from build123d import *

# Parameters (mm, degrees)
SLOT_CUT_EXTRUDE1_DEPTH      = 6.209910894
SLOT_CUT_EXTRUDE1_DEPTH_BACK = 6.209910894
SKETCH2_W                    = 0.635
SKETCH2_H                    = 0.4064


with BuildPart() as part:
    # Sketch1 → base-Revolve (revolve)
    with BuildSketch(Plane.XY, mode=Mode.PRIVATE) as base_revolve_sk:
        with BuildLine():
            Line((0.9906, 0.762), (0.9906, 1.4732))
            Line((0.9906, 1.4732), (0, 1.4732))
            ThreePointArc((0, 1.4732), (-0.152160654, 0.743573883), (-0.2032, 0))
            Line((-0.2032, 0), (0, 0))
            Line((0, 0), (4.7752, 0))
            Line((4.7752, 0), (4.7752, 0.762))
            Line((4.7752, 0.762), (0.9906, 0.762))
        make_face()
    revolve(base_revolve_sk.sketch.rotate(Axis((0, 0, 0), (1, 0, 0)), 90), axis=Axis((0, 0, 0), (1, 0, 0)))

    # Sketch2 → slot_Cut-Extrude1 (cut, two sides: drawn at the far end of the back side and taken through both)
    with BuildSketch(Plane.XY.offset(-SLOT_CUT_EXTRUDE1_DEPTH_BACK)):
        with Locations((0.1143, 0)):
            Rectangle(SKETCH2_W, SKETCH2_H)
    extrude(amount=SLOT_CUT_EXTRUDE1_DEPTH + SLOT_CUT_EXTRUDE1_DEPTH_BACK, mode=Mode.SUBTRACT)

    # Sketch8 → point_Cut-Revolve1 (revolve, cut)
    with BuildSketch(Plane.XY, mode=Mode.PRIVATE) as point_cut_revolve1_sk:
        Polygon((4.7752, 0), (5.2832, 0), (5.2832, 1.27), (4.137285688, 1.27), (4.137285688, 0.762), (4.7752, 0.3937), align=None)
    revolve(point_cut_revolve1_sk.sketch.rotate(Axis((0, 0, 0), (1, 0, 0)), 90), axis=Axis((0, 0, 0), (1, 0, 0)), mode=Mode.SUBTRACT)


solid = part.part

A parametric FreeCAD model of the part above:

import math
import FreeCAD as App
import Part
import Sketcher

V = App.Vector
Q = App.Units.Quantity

doc = App.newDocument("Part")
body = doc.addObject("PartDesign::Body", "Body")

sketch1 = body.newObject("Sketcher::SketchObject", "Sketch")
sketch1.AttachmentSupport = (doc.getObject("XY_Plane"), [""])
sketch1.MapMode = "FlatFace"
sketch1.addGeometry(Part.LineSegment(V(1, 0.8, 0), V(1, 1.5, 0)), False)
sketch1.addGeometry(Part.LineSegment(V(1, 1.5, 0), V(0, 1.5, 0)), False)
sketch1.addGeometry(Part.ArcOfCircle(Part.Circle(V(5.2, 0, 0), V(0, 0, 1), 5.4), math.radians(164.29), math.radians(180)), False)
sketch1.addGeometry(Part.LineSegment(V(-0.2, 0, 0), V(4.8, 0, 0)), False)
sketch1.addGeometry(Part.LineSegment(V(4.8, 0, 0), V(4.8, 0.8, 0)), False)
sketch1.addGeometry(Part.LineSegment(V(4.8, 0.8, 0), V(1, 0.8, 0)), False)
sketch1.addConstraint(Sketcher.Constraint("Coincident", 0, 2, 1, 1))
sketch1.addConstraint(Sketcher.Constraint("Coincident", 1, 2, 2, 1))
sketch1.addConstraint(Sketcher.Constraint("Coincident", 2, 2, 3, 1))
sketch1.addConstraint(Sketcher.Constraint("Coincident", 3, 2, 4, 1))
sketch1.addConstraint(Sketcher.Constraint("Coincident", 4, 2, 5, 1))
sketch1.addConstraint(Sketcher.Constraint("Coincident", 5, 2, 0, 1))
sketch1.addConstraint(Sketcher.Constraint("Vertical", 0))
sketch1.addConstraint(Sketcher.Constraint("Horizontal", 1))
sketch1.addConstraint(Sketcher.Constraint("Horizontal", 3))
sketch1.addConstraint(Sketcher.Constraint("Vertical", 4))
sketch1.addConstraint(Sketcher.Constraint("Horizontal", 5))
sketch1.addConstraint(Sketcher.Constraint("PointOnObject", 2, 3, -1))
sketch1.addConstraint(Sketcher.Constraint("PointOnObject", 1, 2, -2))
sketch1.addConstraint(Sketcher.Constraint("PointOnObject", 2, 2, -1))
sketch1.addConstraint(Sketcher.Constraint("DistanceY", 4, 1, 4, 2, Q("0.03 in")))
sketch1.addConstraint(Sketcher.Constraint("DistanceX", 1, 2, 1, 1, Q("0.039 in")))
sketch1.addConstraint(Sketcher.Constraint("DistanceX", 3, 1, 3, 2, Q("0.196 in")))
sketch1.addConstraint(Sketcher.Constraint("DistanceX", 5, 2, 5, 1, Q("0.149 in")))
sketch1.addConstraint(Sketcher.Constraint("DistanceY", 0, 1, 0, 2, Q("0.028 in")))
revolution = body.newObject("PartDesign::Revolution", "Revolution")
revolution.Profile = sketch1
revolution.ReferenceAxis = (sketch1, ["H_Axis"])
revolution.Angle = 360

sketch2 = body.newObject("Sketcher::SketchObject", "Sketch001")
sketch2.AttachmentSupport = (doc.getObject("XY_Plane"), [""])
sketch2.MapMode = "FlatFace"
sketch2.addGeometry(Part.LineSegment(V(-0.2, 0.2, 0), V(-0.2, -0.2, 0)), False)
sketch2.addGeometry(Part.LineSegment(V(-0.2, -0.2, 0), V(0.43, -0.2, 0)), False)
sketch2.addGeometry(Part.LineSegment(V(0.43, -0.2, 0), V(0.43, 0.2, 0)), False)
sketch2.addGeometry(Part.LineSegment(V(0.43, 0.2, 0), V(-0.2, 0.2, 0)), False)
sketch2.addConstraint(Sketcher.Constraint("Coincident", 0, 2, 1, 1))
sketch2.addConstraint(Sketcher.Constraint("Coincident", 1, 2, 2, 1))
sketch2.addConstraint(Sketcher.Constraint("Coincident", 2, 2, 3, 1))
sketch2.addConstraint(Sketcher.Constraint("Coincident", 3, 2, 0, 1))
sketch2.addConstraint(Sketcher.Constraint("Vertical", 0))
sketch2.addConstraint(Sketcher.Constraint("Horizontal", 1))
sketch2.addConstraint(Sketcher.Constraint("Vertical", 2))
sketch2.addConstraint(Sketcher.Constraint("Horizontal", 3))
sketch2.addConstraint(Sketcher.Constraint("DistanceX", 1, 1, 1, 2, Q("0.025 in")))
sketch2.addConstraint(Sketcher.Constraint("DistanceY", 0, 2, 0, 1, Q("0.016 in")))
sketch2.addConstraint(Sketcher.Constraint("DistanceX", 0, 2, -1, 1, Q("0.008 in")))
sketch2.addConstraint(Sketcher.Constraint("DistanceY", 0, 2, -1, 1, Q("0.008 in")))
pocket1 = body.newObject("PartDesign::Pocket", "Pocket")
pocket1.Profile = sketch2
pocket1.Type = "ThroughAll"
pocket1.Midplane = True

sketch3 = body.newObject("Sketcher::SketchObject", "Sketch002")
sketch3.AttachmentSupport = (doc.getObject("XY_Plane"), [""])
sketch3.MapMode = "FlatFace"
sketch3.addGeometry(Part.LineSegment(V(4.78, 0, 0), V(5.28, 0, 0)), False)
sketch3.addGeometry(Part.LineSegment(V(5.28, 0, 0), V(5.28, 1.27, 0)), False)
sketch3.addGeometry(Part.LineSegment(V(5.28, 1.27, 0), V(4.14, 1.27, 0)), False)
sketch3.addGeometry(Part.LineSegment(V(4.14, 1.27, 0), V(4.14, 0.76, 0)), False)
sketch3.addGeometry(Part.LineSegment(V(4.14, 0.76, 0), V(4.78, 0.39, 0)), False)
sketch3.addGeometry(Part.LineSegment(V(4.78, 0.39, 0), V(4.78, 0, 0)), False)
sketch3.addConstraint(Sketcher.Constraint("Coincident", 0, 2, 1, 1))
sketch3.addConstraint(Sketcher.Constraint("Coincident", 1, 2, 2, 1))
sketch3.addConstraint(Sketcher.Constraint("Coincident", 2, 2, 3, 1))
sketch3.addConstraint(Sketcher.Constraint("Coincident", 3, 2, 4, 1))
sketch3.addConstraint(Sketcher.Constraint("Coincident", 4, 2, 5, 1))
sketch3.addConstraint(Sketcher.Constraint("Coincident", 5, 2, 0, 1))
sketch3.addConstraint(Sketcher.Constraint("Horizontal", 0))
sketch3.addConstraint(Sketcher.Constraint("Vertical", 1))
sketch3.addConstraint(Sketcher.Constraint("Horizontal", 2))
sketch3.addConstraint(Sketcher.Constraint("Vertical", 3))
sketch3.addConstraint(Sketcher.Constraint("Vertical", 5))
sketch3.addConstraint(Sketcher.Constraint("PointOnObject", 0, 2, -1))
sketch3.addConstraint(Sketcher.Constraint("Equal", 0, 3))
sketch3.addConstraint(Sketcher.Constraint("Angle", 4, Q("-30 deg")))
sketch3.addConstraint(Sketcher.Constraint("DistanceX", 0, 1, 0, 2, Q("0.02 in")))
sketch3.addConstraint(Sketcher.Constraint("DistanceY", 1, 1, 1, 2, Q("0.05 in")))
sketch3.addConstraint(Sketcher.Constraint("Distance", 4, Q("0.029 in")))
sketch3.addConstraint(Sketcher.Constraint("DistanceX", -1, 1, 0, 2, Q("0.208 in")))
groove = body.newObject("PartDesign::Groove", "Groove")
groove.Profile = sketch3
groove.ReferenceAxis = (sketch3, ["H_Axis"])
groove.Angle = 360

doc.recompute()
